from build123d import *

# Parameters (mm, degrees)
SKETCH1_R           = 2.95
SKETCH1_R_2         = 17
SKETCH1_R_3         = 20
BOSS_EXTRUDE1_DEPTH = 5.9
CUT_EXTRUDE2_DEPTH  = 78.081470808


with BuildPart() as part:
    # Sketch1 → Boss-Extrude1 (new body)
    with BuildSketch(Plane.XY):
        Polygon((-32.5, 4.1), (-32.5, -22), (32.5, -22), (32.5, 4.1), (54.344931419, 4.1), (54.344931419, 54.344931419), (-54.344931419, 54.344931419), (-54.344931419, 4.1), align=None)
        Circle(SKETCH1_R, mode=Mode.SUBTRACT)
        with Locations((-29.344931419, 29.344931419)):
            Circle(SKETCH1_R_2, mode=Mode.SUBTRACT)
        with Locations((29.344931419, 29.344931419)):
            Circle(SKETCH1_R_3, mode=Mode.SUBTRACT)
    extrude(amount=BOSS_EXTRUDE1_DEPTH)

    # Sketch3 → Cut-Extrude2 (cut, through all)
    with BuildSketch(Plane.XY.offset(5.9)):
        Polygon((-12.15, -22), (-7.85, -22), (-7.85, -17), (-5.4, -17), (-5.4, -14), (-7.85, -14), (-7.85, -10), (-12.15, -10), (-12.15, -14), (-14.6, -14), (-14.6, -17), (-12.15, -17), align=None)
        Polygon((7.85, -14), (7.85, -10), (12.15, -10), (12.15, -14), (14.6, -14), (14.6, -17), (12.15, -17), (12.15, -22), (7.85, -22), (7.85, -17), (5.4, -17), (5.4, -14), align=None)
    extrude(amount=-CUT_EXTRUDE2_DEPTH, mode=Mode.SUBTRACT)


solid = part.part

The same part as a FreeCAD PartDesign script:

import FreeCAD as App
import Part
import Sketcher
Q = App.Units.Quantity

doc = App.newDocument("Part")
params = doc.addObject("Spreadsheet::Sheet", "Params")
for row, (alias, value) in enumerate([
    ("sketch1_diameter", "34 mm"),
    ("sketch1_diameter2", "40 mm"),
    ("sketch1_diameter3", "5.9 mm"),
    ("sketch1_width", "65 mm"),
    ("sketch1_height", "26.1 mm"),
    ("pad1_length", "5.9 mm"),
    ("sketch2_height", "5 mm"),
    ("sketch2_height2", "3 mm"),
    ("sketch2_height3", "4 mm"),
    ("sketch2_width", "4.3 mm"),
    ("sketch2_width2", "2.45 mm"),
], start=1):
    params.set(f"A{row}", alias)
    params.set(f"B{row}", "=" + value)
    params.setAlias(f"B{row}", alias)

body = doc.addObject("PartDesign::Body", "Body")

# Sketch on XY plane
sketch1 = body.newObject("Sketcher::SketchObject", "Sketch")
sketch1.AttachmentSupport = (doc.getObject("XY_Plane"), [""])
sketch1.MapMode = "FlatFace"
sketch1.addGeometry(Part.LineSegment(App.Vector(-32.5, 4.1, 0), App.Vector(-32.5, -22, 0)), False)
sketch1.addGeometry(Part.LineSegment(App.Vector(-32.5, -22, 0), App.Vector(32.5, -22, 0)), False)
sketch1.addGeometry(Part.LineSegment(App.Vector(32.5, -22, 0), App.Vector(32.5, 4.1, 0)), False)
sketch1.addGeometry(Part.LineSegment(App.Vector(32.5, 4.1, 0), App.Vector(54.3, 4.1, 0)), False)
sketch1.addGeometry(Part.LineSegment(App.Vector(54.3, 4.1, 0), App.Vector(54.3, 54.3, 0)), False)
sketch1.addGeometry(Part.LineSegment(App.Vector(54.3, 54.3, 0), App.Vector(-54.3, 54.3, 0)), False)
sketch1.addGeometry(Part.LineSegment(App.Vector(-54.3, 54.3, 0), App.Vector(-54.3, 4.1, 0)), False)
sketch1.addGeometry(Part.LineSegment(App.Vector(-54.3, 4.1, 0), App.Vector(-32.5, 4.1, 0)), False)
sketch1.addGeometry(Part.Circle(App.Vector(0, 0, 0), App.Vector(0, 0, 1), 3), False)
sketch1.addGeometry(Part.Circle(App.Vector(-29.3, 29.3, 0), App.Vector(0, 0, 1), 17), False)
sketch1.addGeometry(Part.Circle(App.Vector(29.3, 29.3, 0), App.Vector(0, 0, 1), 20), False)
sketch1.addConstraint(Sketcher.Constraint("Coincident", 0, 2, 1, 1))
sketch1.addConstraint(Sketcher.Constraint("Coincident", 1, 2, 2, 1))
sketch1.addConstraint(Sketcher.Constraint("Coincident", 2, 2, 3, 1))
sketch1.addConstraint(Sketcher.Constraint("Coincident", 3, 2, 4, 1))
sketch1.addConstraint(Sketcher.Constraint("Coincident", 4, 2, 5, 1))
sketch1.addConstraint(Sketcher.Constraint("Coincident", 5, 2, 6, 1))
sketch1.addConstraint(Sketcher.Constraint("Coincident", 6, 2, 7, 1))
sketch1.addConstraint(Sketcher.Constraint("Coincident", 7, 2, 0, 1))
sketch1.addConstraint(Sketcher.Constraint("Vertical", 0))
sketch1.addConstraint(Sketcher.Constraint("Horizontal", 1))
sketch1.addConstraint(Sketcher.Constraint("Vertical", 2))
sketch1.addConstraint(Sketcher.Constraint("Horizontal", 3))
sketch1.addConstraint(Sketcher.Constraint("Vertical", 4))
sketch1.addConstraint(Sketcher.Constraint("Horizontal", 5))
sketch1.addConstraint(Sketcher.Constraint("Vertical", 6))
sketch1.addConstraint(Sketcher.Constraint("Horizontal", 7))
sketch1.addConstraint(Sketcher.Constraint("Coincident", 8, 3, -1, 1))
sketch1.addConstraint(Sketcher.Constraint("Symmetric", 9, 3, 10, 3, -2))
sketch1.addConstraint(Sketcher.Constraint("Symmetric", 3, 2, 6, 2, -2))
sketch1.addConstraint(Sketcher.Constraint("Equal", 3, 7))
sketch1.addConstraint(Sketcher.Constraint("Diameter", 9, Q("34 mm")))
sketch1.addConstraint(Sketcher.Constraint("Diameter", 10, Q("40 mm")))
sketch1.addConstraint(Sketcher.Constraint("Diameter", 8, Q("5.9 mm")))
sketch1.addConstraint(Sketcher.Constraint("DistanceX", 1, 1, 1, 2, Q("65 mm")))
sketch1.addConstraint(Sketcher.Constraint("DistanceY", 0, 2, 0, 1, Q("26.1 mm")))
sketch1.addConstraint(Sketcher.Constraint("DistanceY", 0, 2, -1, 1, Q("22 mm")))
sketch1.addConstraint(Sketcher.Constraint("DistanceX", 10, 3, 3, 2, Q("25 mm")))
sketch1.addConstraint(Sketcher.Constraint("DistanceY", 10, 3, 4, 2, Q("25 mm")))
sketch1.addConstraint(Sketcher.Constraint("DistanceX", 3, 1, 3, 2, Q("21.844931 mm")))
sketch1.addConstraint(Sketcher.Constraint("DistanceY", 4, 1, 4, 2, Q("50.244931 mm")))
sketch1.setExpression("Constraints[20]", "Params.sketch1_diameter")
sketch1.setExpression("Constraints[21]", "Params.sketch1_diameter2")
sketch1.setExpression("Constraints[22]", "Params.sketch1_diameter3")
sketch1.setExpression("Constraints[23]", "Params.sketch1_width")
sketch1.setExpression("Constraints[24]", "Params.sketch1_height")
pad1 = body.newObject("PartDesign::Pad", "Pad")
pad1.Profile = sketch1
pad1.setExpression("Length", "Params.pad1_length")

# Sketch on XY plane
sketch2 = body.newObject("Sketcher::SketchObject", "Sketch001")
sketch2.AttachmentSupport = (doc.getObject("XY_Plane"), [""])
sketch2.MapMode = "FlatFace"
sketch2.AttachmentOffset = App.Placement(App.Vector(0, 0, 5.9), App.Rotation())
sketch2.addGeometry(Part.LineSegment(App.Vector(-12.2, -22, 0), App.Vector(-7.8, -22, 0)), False)
sketch2.addGeometry(Part.LineSegment(App.Vector(-7.8, -22, 0), App.Vector(-7.8, -17, 0)), False)
sketch2.addGeometry(Part.LineSegment(App.Vector(-7.8, -17, 0), App.Vector(-5.4, -17, 0)), False)
sketch2.addGeometry(Part.LineSegment(App.Vector(-5.4, -17, 0), App.Vector(-5.4, -14, 0)), False)
sketch2.addGeometry(Part.LineSegment(App.Vector(-5.4, -14, 0), App.Vector(-7.8, -14, 0)), False)
sketch2.addGeometry(Part.LineSegment(App.Vector(-7.8, -14, 0), App.Vector(-7.8, -10, 0)), False)
sketch2.addGeometry(Part.LineSegment(App.Vector(-7.8, -10, 0), App.Vector(-12.2, -10, 0)), False)
sketch2.addGeometry(Part.LineSegment(App.Vector(-12.2, -10, 0), App.Vector(-12.2, -14, 0)), False)
sketch2.addGeometry(Part.LineSegment(App.Vector(-12.2, -14, 0), App.Vector(-14.6, -14, 0)), False)
sketch2.addGeometry(Part.LineSegment(App.Vector(-14.6, -14, 0), App.Vector(-14.6, -17, 0)), False)
sketch2.addGeometry(Part.LineSegment(App.Vector(-14.6, -17, 0), App.Vector(-12.2, -17, 0)), False)
sketch2.addGeometry(Part.LineSegment(App.Vector(-12.2, -17, 0), App.Vector(-12.2, -22, 0)), False)
sketch2.addGeometry(Part.LineSegment(App.Vector(7.8, -10, 0), App.Vector(7.8, -14, 0)), False)
sketch2.addGeometry(Part.LineSegment(App.Vector(7.8, -14, 0), App.Vector(5.4, -14, 0)), False)
sketch2.addGeometry(Part.LineSegment(App.Vector(5.4, -14, 0), App.Vector(5.4, -17, 0)), False)
sketch2.addGeometry(Part.LineSegment(App.Vector(5.4, -17, 0), App.Vector(7.8, -17, 0)), False)
sketch2.addGeometry(Part.LineSegment(App.Vector(7.8, -17, 0), App.Vector(7.8, -22, 0)), False)
sketch2.addGeometry(Part.LineSegment(App.Vector(7.8, -22, 0), App.Vector(12.2, -22, 0)), False)
sketch2.addGeometry(Part.LineSegment(App.Vector(12.2, -22, 0), App.Vector(12.2, -17, 0)), False)
sketch2.addGeometry(Part.LineSegment(App.Vector(12.2, -17, 0), App.Vector(14.6, -17, 0)), False)
sketch2.addGeometry(Part.LineSegment(App.Vector(14.6, -17, 0), App.Vector(14.6, -14, 0)), False)
sketch2.addGeometry(Part.LineSegment(App.Vector(14.6, -14, 0), App.Vector(12.2, -14, 0)), False)
sketch2.addGeometry(Part.LineSegment(App.Vector(12.2, -14, 0), App.Vector(12.2, -10, 0)), False)
sketch2.addGeometry(Part.LineSegment(App.Vector(12.2, -10, 0), App.Vector(7.8, -10, 0)), False)
sketch2.addConstraint(Sketcher.Constraint("Coincident", 0, 2, 1, 1))
sketch2.addConstraint(Sketcher.Constraint("Coincident", 1, 2, 2, 1))
sketch2.addConstraint(Sketcher.Constraint("Coincident", 2, 2, 3, 1))
sketch2.addConstraint(Sketcher.Constraint("Coincident", 3, 2, 4, 1))
sketch2.addConstraint(Sketcher.Constraint("Coincident", 4, 2, 5, 1))
sketch2.addConstraint(Sketcher.Constraint("Coincident", 5, 2, 6, 1))
sketch2.addConstraint(Sketcher.Constraint("Coincident", 6, 2, 7, 1))
sketch2.addConstraint(Sketcher.Constraint("Coincident", 7, 2, 8, 1))
sketch2.addConstraint(Sketcher.Constraint("Coincident", 8, 2, 9, 1))
sketch2.addConstraint(Sketcher.Constraint("Coincident", 9, 2, 10, 1))
sketch2.addConstraint(Sketcher.Constraint("Coincident", 10, 2, 11, 1))
sketch2.addConstraint(Sketcher.Constraint("Coincident", 11, 2, 0, 1))
sketch2.addConstraint(Sketcher.Constraint("Coincident", 12, 2, 13, 1))
sketch2.addConstraint(Sketcher.Constraint("Coincident", 13, 2, 14, 1))
sketch2.addConstraint(Sketcher.Constraint("Coincident", 14, 2, 15, 1))
sketch2.addConstraint(Sketcher.Constraint("Coincident", 15, 2, 16, 1))
sketch2.addConstraint(Sketcher.Constraint("Coincident", 16, 2, 17, 1))
sketch2.addConstraint(Sketcher.Constraint("Coincident", 17, 2, 18, 1))
sketch2.addConstraint(Sketcher.Constraint("Coincident", 18, 2, 19, 1))
sketch2.addConstraint(Sketcher.Constraint("Coincident", 19, 2, 20, 1))
sketch2.addConstraint(Sketcher.Constraint("Coincident", 20, 2, 21, 1))
sketch2.addConstraint(Sketcher.Constraint("Coincident", 21, 2, 22, 1))
sketch2.addConstraint(Sketcher.Constraint("Coincident", 22, 2, 23, 1))
sketch2.addConstraint(Sketcher.Constraint("Coincident", 23, 2, 12, 1))
sketch2.addConstraint(Sketcher.Constraint("Horizontal", 0))
sketch2.addConstraint(Sketcher.Constraint("Vertical", 1))
sketch2.addConstraint(Sketcher.Constraint("Horizontal", 2))
sketch2.addConstraint(Sketcher.Constraint("Vertical", 3))
sketch2.addConstraint(Sketcher.Constraint("Horizontal", 4))
sketch2.addConstraint(Sketcher.Constraint("Vertical", 5))
sketch2.addConstraint(Sketcher.Constraint("Horizontal", 6))
sketch2.addConstraint(Sketcher.Constraint("Vertical", 7))
sketch2.addConstraint(Sketcher.Constraint("Horizontal", 8))
sketch2.addConstraint(Sketcher.Constraint("Vertical", 9))
sketch2.addConstraint(Sketcher.Constraint("Horizontal", 10))
sketch2.addConstraint(Sketcher.Constraint("Vertical", 11))
sketch2.addConstraint(Sketcher.Constraint("Vertical", 12))
sketch2.addConstraint(Sketcher.Constraint("Horizontal", 13))
sketch2.addConstraint(Sketcher.Constraint("Vertical", 14))
sketch2.addConstraint(Sketcher.Constraint("Horizontal", 15))
sketch2.addConstraint(Sketcher.Constraint("Vertical", 16))
sketch2.addConstraint(Sketcher.Constraint("Horizontal", 17))
sketch2.addConstraint(Sketcher.Constraint("Vertical", 18))
sketch2.addConstraint(Sketcher.Constraint("Horizontal", 19))
sketch2.addConstraint(Sketcher.Constraint("Vertical", 20))
sketch2.addConstraint(Sketcher.Constraint("Horizontal", 21))
sketch2.addConstraint(Sketcher.Constraint("Vertical", 22))
sketch2.addConstraint(Sketcher.Constraint("Horizontal", 23))
sketch2.addConstraint(Sketcher.Constraint("Symmetric", 4, 2, 12, 2, -2))
sketch2.addConstraint(Sketcher.Constraint("Symmetric", 2, 2, 14, 2, -2))
sketch2.addConstraint(Sketcher.Constraint("Symmetric", 0, 2, 16, 2, -2))
sketch2.addConstraint(Sketcher.Constraint("Symmetric", 10, 2, 18, 2, -2))
sketch2.addConstraint(Sketcher.Constraint("Symmetric", 8, 2, 20, 2, -2))
sketch2.addConstraint(Sketcher.Constraint("Symmetric", 6, 2, 22, 2, -2))
sketch2.addConstraint(Sketcher.Constraint("Horizontal", 4, 2, 7, 2))
sketch2.addConstraint(Sketcher.Constraint("Horizontal", 2, 2, 9, 2))
sketch2.addConstraint(Sketcher.Constraint("Vertical", 1, 2, 4, 2))
sketch2.addConstraint(Sketcher.Constraint("Vertical", 7, 2, 10, 2))
sketch2.addConstraint(Sketcher.Constraint("Equal", 4, 8))
sketch2.addConstraint(Sketcher.Constraint("DistanceY", 1, 1, 1, 2, Q("5 mm")))
sketch2.addConstraint(Sketcher.Constraint("DistanceY", 3, 1, 3, 2, Q("3 mm")))
sketch2.addConstraint(Sketcher.Constraint("DistanceY", 5, 1, 5, 2, Q("4 mm")))
sketch2.addConstraint(Sketcher.Constraint("DistanceX", 0, 1, 0, 2, Q("4.3 mm")))
sketch2.addConstraint(Sketcher.Constraint("DistanceY", 0, 2, -1, 1, Q("22 mm")))
sketch2.addConstraint(Sketcher.Constraint("DistanceX", 2, 1, 2, 2, Q("2.45 mm")))
sketch2.addConstraint(Sketcher.Constraint("DistanceX", 2, 2, -1, 1, Q("5.4 mm")))
sketch2.setExpression("Constraints[59]", "Params.sketch2_height")
sketch2.setExpression("Constraints[60]", "Params.sketch2_height2")
sketch2.setExpression("Constraints[61]", "Params.sketch2_height3")
sketch2.setExpression("Constraints[62]", "Params.sketch2_width")
sketch2.setExpression("Constraints[64]", "Params.sketch2_width2")
pocket1 = body.newObject("PartDesign::Pocket", "Pocket")
pocket1.Profile = sketch2
pocket1.Type = "ThroughAll"

doc.recompute()
